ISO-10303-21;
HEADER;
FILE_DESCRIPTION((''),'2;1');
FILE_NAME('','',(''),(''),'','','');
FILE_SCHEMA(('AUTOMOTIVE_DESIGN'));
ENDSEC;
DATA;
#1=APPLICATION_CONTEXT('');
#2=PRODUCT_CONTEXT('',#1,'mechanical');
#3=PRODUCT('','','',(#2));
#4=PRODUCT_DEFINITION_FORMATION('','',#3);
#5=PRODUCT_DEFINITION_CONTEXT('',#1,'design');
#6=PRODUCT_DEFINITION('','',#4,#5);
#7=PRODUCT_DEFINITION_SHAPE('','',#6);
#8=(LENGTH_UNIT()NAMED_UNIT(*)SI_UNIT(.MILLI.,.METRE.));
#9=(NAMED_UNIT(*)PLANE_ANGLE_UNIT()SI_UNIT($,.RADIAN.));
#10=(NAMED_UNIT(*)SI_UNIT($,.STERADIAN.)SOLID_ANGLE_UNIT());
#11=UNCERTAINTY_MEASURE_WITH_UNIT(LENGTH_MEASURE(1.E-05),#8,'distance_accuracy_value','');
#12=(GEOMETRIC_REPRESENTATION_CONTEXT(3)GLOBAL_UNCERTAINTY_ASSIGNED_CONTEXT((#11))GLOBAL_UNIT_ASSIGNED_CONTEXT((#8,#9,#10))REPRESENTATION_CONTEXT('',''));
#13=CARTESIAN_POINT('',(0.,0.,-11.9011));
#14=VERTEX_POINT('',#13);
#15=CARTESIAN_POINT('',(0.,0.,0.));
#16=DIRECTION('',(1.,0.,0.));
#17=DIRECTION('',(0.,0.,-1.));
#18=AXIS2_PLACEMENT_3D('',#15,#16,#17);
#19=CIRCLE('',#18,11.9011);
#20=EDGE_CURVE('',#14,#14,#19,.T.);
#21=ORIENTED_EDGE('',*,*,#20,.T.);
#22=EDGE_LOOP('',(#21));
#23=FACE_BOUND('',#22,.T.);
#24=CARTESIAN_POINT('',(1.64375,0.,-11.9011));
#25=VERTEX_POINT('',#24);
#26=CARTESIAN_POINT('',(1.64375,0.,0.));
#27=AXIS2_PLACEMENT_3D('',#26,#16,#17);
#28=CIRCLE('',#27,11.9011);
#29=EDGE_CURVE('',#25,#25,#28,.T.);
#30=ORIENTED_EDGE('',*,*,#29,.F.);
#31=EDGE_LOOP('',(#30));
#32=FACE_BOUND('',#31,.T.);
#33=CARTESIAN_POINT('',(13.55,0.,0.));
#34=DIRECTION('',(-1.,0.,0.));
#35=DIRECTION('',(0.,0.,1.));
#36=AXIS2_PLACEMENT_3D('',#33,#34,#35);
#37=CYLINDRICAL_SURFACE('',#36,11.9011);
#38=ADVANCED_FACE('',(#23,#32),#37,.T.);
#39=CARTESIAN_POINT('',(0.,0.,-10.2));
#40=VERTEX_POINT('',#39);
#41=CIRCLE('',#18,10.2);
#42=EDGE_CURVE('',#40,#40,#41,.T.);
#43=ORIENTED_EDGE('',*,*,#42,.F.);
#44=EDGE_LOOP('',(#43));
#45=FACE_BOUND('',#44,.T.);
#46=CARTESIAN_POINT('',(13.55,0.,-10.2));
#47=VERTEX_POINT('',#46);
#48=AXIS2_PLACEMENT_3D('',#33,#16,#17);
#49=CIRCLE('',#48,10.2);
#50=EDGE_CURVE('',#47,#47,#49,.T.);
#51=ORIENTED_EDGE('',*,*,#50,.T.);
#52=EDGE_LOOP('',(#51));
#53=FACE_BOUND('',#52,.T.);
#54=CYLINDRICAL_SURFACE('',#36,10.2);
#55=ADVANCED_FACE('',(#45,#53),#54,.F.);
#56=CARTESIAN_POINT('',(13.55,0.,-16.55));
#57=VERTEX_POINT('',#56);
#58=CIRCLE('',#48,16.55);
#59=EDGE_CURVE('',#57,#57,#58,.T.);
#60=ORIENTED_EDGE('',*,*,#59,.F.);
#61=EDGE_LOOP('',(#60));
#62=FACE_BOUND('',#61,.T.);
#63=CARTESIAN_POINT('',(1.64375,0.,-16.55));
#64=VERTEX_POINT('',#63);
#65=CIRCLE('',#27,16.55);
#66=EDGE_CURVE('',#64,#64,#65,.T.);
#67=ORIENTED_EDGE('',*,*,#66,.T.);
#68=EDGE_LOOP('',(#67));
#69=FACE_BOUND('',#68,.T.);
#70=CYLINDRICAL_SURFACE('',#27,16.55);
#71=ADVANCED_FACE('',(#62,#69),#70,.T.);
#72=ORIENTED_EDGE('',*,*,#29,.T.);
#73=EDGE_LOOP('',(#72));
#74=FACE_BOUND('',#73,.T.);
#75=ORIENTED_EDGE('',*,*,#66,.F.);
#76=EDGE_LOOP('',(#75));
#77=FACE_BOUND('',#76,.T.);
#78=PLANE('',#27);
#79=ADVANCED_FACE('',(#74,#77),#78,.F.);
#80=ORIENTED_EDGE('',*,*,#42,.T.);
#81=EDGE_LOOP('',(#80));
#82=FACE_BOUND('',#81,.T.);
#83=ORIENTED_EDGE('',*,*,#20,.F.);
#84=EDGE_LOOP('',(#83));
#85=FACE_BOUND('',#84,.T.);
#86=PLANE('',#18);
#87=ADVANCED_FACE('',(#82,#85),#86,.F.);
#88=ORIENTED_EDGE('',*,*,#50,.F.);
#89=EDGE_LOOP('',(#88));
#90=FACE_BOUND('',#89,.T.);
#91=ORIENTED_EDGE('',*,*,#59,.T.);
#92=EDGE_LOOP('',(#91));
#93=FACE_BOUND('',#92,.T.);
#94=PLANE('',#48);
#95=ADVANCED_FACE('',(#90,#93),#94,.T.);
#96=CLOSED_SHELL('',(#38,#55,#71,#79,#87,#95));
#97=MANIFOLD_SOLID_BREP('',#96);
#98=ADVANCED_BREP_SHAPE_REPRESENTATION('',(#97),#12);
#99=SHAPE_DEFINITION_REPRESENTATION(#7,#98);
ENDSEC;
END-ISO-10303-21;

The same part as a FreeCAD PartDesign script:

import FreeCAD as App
import Part
import Sketcher

V = App.Vector

doc = App.newDocument("Part")
body = doc.addObject("PartDesign::Body", "Body")

# Sketch on YZ plane
sketch1 = doc.addObject("Sketcher::SketchObject", "Sketch")
body.addObject(sketch1)
sketch1.AttachmentSupport = (doc.YZ_Plane, [""])
sketch1.MapMode = "FlatFace"
sketch1.addGeometry([
    Part.Circle(V(0, 0, 0), V(0, 0, 1), 12),
    Part.Circle(V(0, 0, 0), V(0, 0, 1), 10),
], False)
sketch1.addConstraint([
    Sketcher.Constraint("Coincident", 0, 3, -1, 1),
    Sketcher.Constraint("Coincident", 1, 3, -1, 1),
    Sketcher.Constraint("Diameter", 1, 20.4),
    Sketcher.Constraint("Diameter", 0, 23.8022),
])
pad1 = doc.addObject("PartDesign::Pad", "Pad")
body.addObject(pad1)
pad1.Profile = sketch1
pad1.Length = 13.55

# Sketch on YZ plane
sketch2 = doc.addObject("Sketcher::SketchObject", "Sketch001")
body.addObject(sketch2)
sketch2.AttachmentSupport = (doc.YZ_Plane, [""])
sketch2.MapMode = "FlatFace"
sketch2.AttachmentOffset = App.Placement(V(0, 0, 13.55), App.Rotation())
sketch2.addGeometry([
    Part.Circle(V(0, 0, 0), V(0, 0, 1), 17),
    Part.Circle(V(0, 0, 0), V(0, 0, 1), 10),
], False)
sketch2.addConstraint([
    Sketcher.Constraint("Coincident", 0, 3, -1, 1),
    Sketcher.Constraint("Coincident", 1, 3, -1, 1),
    Sketcher.Constraint("Diameter", 0, 33.1),
    Sketcher.Constraint("Diameter", 1, 20.4),
])
pad2 = doc.addObject("PartDesign::Pad", "Pad001")
body.addObject(pad2)
pad2.Profile = sketch2
pad2.Length = 11.90625
pad2.Reversed = True

doc.recompute()
